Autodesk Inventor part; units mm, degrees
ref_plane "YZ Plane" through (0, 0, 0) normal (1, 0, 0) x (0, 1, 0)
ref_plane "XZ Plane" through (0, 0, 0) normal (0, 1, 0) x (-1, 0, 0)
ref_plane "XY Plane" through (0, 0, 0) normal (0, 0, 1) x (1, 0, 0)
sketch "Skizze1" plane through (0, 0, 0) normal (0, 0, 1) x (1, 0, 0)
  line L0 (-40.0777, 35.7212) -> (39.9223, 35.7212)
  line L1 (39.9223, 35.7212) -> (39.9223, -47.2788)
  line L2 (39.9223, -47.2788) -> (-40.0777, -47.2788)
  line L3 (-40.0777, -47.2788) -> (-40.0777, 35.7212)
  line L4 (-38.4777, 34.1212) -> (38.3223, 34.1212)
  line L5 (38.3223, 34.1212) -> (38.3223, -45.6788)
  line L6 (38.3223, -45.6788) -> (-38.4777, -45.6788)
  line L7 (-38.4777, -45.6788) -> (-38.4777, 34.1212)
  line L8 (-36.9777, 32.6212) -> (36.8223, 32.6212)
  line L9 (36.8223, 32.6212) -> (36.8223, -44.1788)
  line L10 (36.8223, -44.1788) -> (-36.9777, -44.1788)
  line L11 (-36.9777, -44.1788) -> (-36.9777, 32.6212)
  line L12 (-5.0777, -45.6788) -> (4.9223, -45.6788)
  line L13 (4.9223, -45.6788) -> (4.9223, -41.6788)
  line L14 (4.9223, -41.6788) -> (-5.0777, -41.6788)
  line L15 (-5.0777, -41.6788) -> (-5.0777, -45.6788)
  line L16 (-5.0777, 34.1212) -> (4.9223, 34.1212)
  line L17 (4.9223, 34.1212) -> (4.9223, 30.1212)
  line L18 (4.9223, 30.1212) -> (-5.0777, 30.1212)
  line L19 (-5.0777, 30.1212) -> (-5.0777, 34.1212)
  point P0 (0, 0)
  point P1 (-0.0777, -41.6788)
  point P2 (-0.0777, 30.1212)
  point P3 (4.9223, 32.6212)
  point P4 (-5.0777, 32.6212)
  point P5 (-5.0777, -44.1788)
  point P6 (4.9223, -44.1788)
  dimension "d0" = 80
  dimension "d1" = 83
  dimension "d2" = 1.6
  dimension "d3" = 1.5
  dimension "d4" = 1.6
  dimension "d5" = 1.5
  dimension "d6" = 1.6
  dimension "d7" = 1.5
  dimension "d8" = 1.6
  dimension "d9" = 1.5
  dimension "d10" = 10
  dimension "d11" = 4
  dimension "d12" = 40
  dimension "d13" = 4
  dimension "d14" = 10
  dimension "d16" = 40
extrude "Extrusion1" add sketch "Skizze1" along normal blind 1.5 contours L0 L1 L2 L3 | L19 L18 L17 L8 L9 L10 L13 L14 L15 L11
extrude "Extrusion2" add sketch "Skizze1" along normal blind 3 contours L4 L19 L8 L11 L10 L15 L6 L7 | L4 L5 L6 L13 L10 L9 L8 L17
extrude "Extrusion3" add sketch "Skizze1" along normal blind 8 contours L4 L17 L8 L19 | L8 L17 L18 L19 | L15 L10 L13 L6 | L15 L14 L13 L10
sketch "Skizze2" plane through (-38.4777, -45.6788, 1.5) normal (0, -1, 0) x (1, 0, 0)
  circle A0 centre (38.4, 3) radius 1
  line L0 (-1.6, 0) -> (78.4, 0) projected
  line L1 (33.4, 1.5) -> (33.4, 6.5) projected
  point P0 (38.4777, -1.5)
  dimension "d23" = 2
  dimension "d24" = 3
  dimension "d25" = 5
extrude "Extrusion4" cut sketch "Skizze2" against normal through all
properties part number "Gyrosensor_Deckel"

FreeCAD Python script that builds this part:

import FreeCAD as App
import Part
import Sketcher

V = App.Vector
Q = App.Units.Quantity


def add_polygon(sketch, points):
    """Adds a closed chain of lines whose ends are joined by coincident constraints."""
    first, n = sketch.GeometryCount, len(points)
    for a, b in zip(points, points[1:] + points[:1]):
        sketch.addGeometry(Part.LineSegment(App.Vector(*a, 0), App.Vector(*b, 0)), False)
    for i in range(n):
        sketch.addConstraint(Sketcher.Constraint("Coincident", first + i, 2, first + (i + 1) % n, 1))

doc = App.newDocument("Part")
body = doc.addObject("PartDesign::Body", "Body")
body.AllowCompound = True

# Sketch on XY plane
sketch1 = body.newObject("Sketcher::SketchObject", "Sketch")
sketch1.AttachmentSupport = (doc.getObject("XY_Plane"), [""])
sketch1.MapMode = "FlatFace"
add_polygon(sketch1, [(39.9223, 35.7212), (-40.0777, 35.7212), (-40.0777, -47.2788), (39.9223, -47.2788)])  # lines 0-3
add_polygon(sketch1, [(-38.4777, -45.6788), (-38.4777, 34.1212), (38.3223, 34.1212), (38.3223, -45.6788)])  # lines 4-7
add_polygon(sketch1, [(-5.0777, 30.1212), (-5.0777, 32.6212), (-36.9777, 32.6212), (-36.9777, -44.1788), (-5.0777, -44.1788), (-5.0777, -41.6788), (4.9223, -41.6788), (4.9223, -44.1788), (36.8223, -44.1788), (36.8223, 32.6212), (4.9223, 32.6212), (4.9223, 30.1212)])  # lines 8-19
sketch1.addConstraint([
    Sketcher.Constraint("Horizontal", 0),
    Sketcher.Constraint("Vertical", 1),
    Sketcher.Constraint("Horizontal", 2),
    Sketcher.Constraint("Vertical", 3),
    Sketcher.Constraint("Vertical", 4),
    Sketcher.Constraint("Horizontal", 5),
    Sketcher.Constraint("Vertical", 6),
    Sketcher.Constraint("Horizontal", 7),
    Sketcher.Constraint("Vertical", 8),
    Sketcher.Constraint("Horizontal", 9),
    Sketcher.Constraint("Vertical", 10),
    Sketcher.Constraint("Horizontal", 11),
    Sketcher.Constraint("Vertical", 12),
    Sketcher.Constraint("Horizontal", 13),
    Sketcher.Constraint("Vertical", 14),
    Sketcher.Constraint("Horizontal", 15),
    Sketcher.Constraint("Vertical", 16),
    Sketcher.Constraint("Horizontal", 17),
    Sketcher.Constraint("Vertical", 18),
    Sketcher.Constraint("Horizontal", 19),
    Sketcher.Constraint("Horizontal", 11, 2, 14, 2),
    Sketcher.Constraint("Horizontal", 9, 2, 16, 2),
    Sketcher.Constraint("Vertical", 8, 2, 11, 2),
    Sketcher.Constraint("Vertical", 14, 2, 17, 2),
    Sketcher.Constraint("Equal", 11, 15),
    Sketcher.Constraint("Equal", 7, 10),
    Sketcher.Constraint("Equal", 8, 12),
    Sketcher.Constraint("DistanceX", 0, 2, 0, 1, Q("80 mm")),
    Sketcher.Constraint("DistanceX", 13, 1, 13, 2, Q("10 mm")),
    Sketcher.Constraint("DistanceY", 1, 2, 1, 1, Q("83 mm")),
    Sketcher.Constraint("DistanceY", 7, 2, 12, 2, Q("4 mm")),
    Sketcher.Constraint("DistanceY", 18, 2, 5, 2, Q("4 mm")),
    Sketcher.Constraint("DistanceX", 0, 2, 4, 2, Q("1.6 mm")),
    Sketcher.Constraint("DistanceY", 4, 2, 0, 2, Q("1.6 mm")),
    Sketcher.Constraint("DistanceX", 5, 2, 3, 2, Q("1.6 mm")),
    Sketcher.Constraint("DistanceY", 2, 2, 6, 2, Q("1.6 mm")),
    Sketcher.Constraint("DistanceX", 4, 2, 9, 2, Q("1.5 mm")),
    Sketcher.Constraint("DistanceX", 15, 2, 6, 2, Q("1.5 mm")),
    Sketcher.Constraint("DistanceX", 0, 2, -1, 1, Q("40.0777 mm")),
    Sketcher.Constraint("DistanceY", -1, 1, 0, 2, Q("35.7212 mm")),
])
pad1 = body.newObject("PartDesign::Pad", "Pad")
pad1.Profile = sketch1
pad1.Length = 1.5

# Sketch on XY plane
sketch2 = body.newObject("Sketcher::SketchObject", "Sketch001")
sketch2.AttachmentSupport = (doc.getObject("XY_Plane"), [""])
sketch2.MapMode = "FlatFace"
add_polygon(sketch2, [(-5.0777, 34.1212), (-38.4777, 34.1212), (-38.4777, -45.6788), (-5.0777, -45.6788), (-5.0777, -44.1788), (-36.9777, -44.1788), (-36.9777, 32.6212), (-5.0777, 32.6212)])  # lines 0-7
add_polygon(sketch2, [(38.3223, 34.1212), (4.9223, 34.1212), (4.9223, 32.6212), (36.8223, 32.6212), (36.8223, -44.1788), (4.9223, -44.1788), (4.9223, -45.6788), (38.3223, -45.6788)])  # lines 8-15
sketch2.addConstraint([
    Sketcher.Constraint("Horizontal", 0),
    Sketcher.Constraint("Vertical", 1),
    Sketcher.Constraint("Horizontal", 2),
    Sketcher.Constraint("Vertical", 3),
    Sketcher.Constraint("Horizontal", 4),
    Sketcher.Constraint("Vertical", 5),
    Sketcher.Constraint("Horizontal", 6),
    Sketcher.Constraint("Vertical", 7),
    Sketcher.Constraint("Horizontal", 8),
    Sketcher.Constraint("Vertical", 9),
    Sketcher.Constraint("Horizontal", 10),
    Sketcher.Constraint("Vertical", 11),
    Sketcher.Constraint("Horizontal", 12),
    Sketcher.Constraint("Vertical", 13),
    Sketcher.Constraint("Horizontal", 14),
    Sketcher.Constraint("Vertical", 15),
    Sketcher.Constraint("Horizontal", 7, 2, 8, 2),
    Sketcher.Constraint("Horizontal", 6, 2, 9, 2),
    Sketcher.Constraint("Horizontal", 4, 2, 11, 2),
    Sketcher.Constraint("Horizontal", 2, 2, 13, 2),
    Sketcher.Constraint("Vertical", 3, 2, 6, 2),
    Sketcher.Constraint("Vertical", 9, 2, 12, 2),
    Sketcher.Constraint("Equal", 2, 8),
    Sketcher.Constraint("Equal", 6, 10),
    Sketcher.Constraint("Equal", 3, 7),
    Sketcher.Constraint("DistanceY", 3, 1, 3, 2, Q("1.5 mm")),
    Sketcher.Constraint("DistanceX", 7, 2, 8, 2, Q("10 mm")),
    Sketcher.Constraint("DistanceX", 1, 2, 4, 2, Q("1.5 mm")),
    Sketcher.Constraint("DistanceX", 0, 2, 0, 1, Q("33.4 mm")),
    Sketcher.Constraint("DistanceY", 1, 2, 1, 1, Q("79.8 mm")),
    Sketcher.Constraint("DistanceX", 0, 2, -1, 1, Q("38.4777 mm")),
    Sketcher.Constraint("DistanceY", -1, 1, 0, 2, Q("34.1212 mm")),
])
pad2 = body.newObject("PartDesign::Pad", "Pad001")
pad2.Profile = sketch2
pad2.Length = 3

# Sketch on XY plane
sketch3 = body.newObject("Sketcher::SketchObject", "Sketch002")
sketch3.AttachmentSupport = (doc.getObject("XY_Plane"), [""])
sketch3.MapMode = "FlatFace"
add_polygon(sketch3, [(4.9223, 34.1212), (-5.0777, 34.1212), (-5.0777, 30.1212), (4.9223, 30.1212)])  # lines 0-3
add_polygon(sketch3, [(-5.0777, -45.6788), (4.9223, -45.6788), (4.9223, -41.6788), (-5.0777, -41.6788)])  # lines 4-7
sketch3.addConstraint([
    Sketcher.Constraint("Horizontal", 0),
    Sketcher.Constraint("Vertical", 1),
    Sketcher.Constraint("Horizontal", 2),
    Sketcher.Constraint("Vertical", 3),
    Sketcher.Constraint("Horizontal", 4),
    Sketcher.Constraint("Vertical", 5),
    Sketcher.Constraint("Horizontal", 6),
    Sketcher.Constraint("Vertical", 7),
    Sketcher.Constraint("Vertical", 3, 2, 4, 2),
    Sketcher.Constraint("Vertical", 1, 2, 6, 2),
    Sketcher.Constraint("Equal", 3, 5),
    Sketcher.Constraint("DistanceX", 0, 2, 0, 1, Q("10 mm")),
    Sketcher.Constraint("DistanceY", 1, 2, 1, 1, Q("4 mm")),
    Sketcher.Constraint("DistanceY", 4, 2, 2, 2, Q("75.8 mm")),
    Sketcher.Constraint("DistanceX", 0, 2, -1, 1, Q("5.0777 mm")),
    Sketcher.Constraint("DistanceY", -1, 1, 0, 2, Q("34.1212 mm")),
])
pad3 = body.newObject("PartDesign::Pad", "Pad002")
pad3.Profile = sketch3
pad3.Length = 8

# Sketch on XZ plane
sketch4 = body.newObject("Sketcher::SketchObject", "Sketch003")
sketch4.AttachmentSupport = (doc.getObject("XZ_Plane"), [""])
sketch4.MapMode = "FlatFace"
sketch4.AttachmentOffset = App.Placement(V(0, 0, 45.6788), App.Rotation())
sketch4.addGeometry(Part.Circle(V(-0.0777, 4.5, 0), V(0, 0, 1), 1), False)
sketch4.addConstraint([
    Sketcher.Constraint("Diameter", 0, Q("2 mm")),
    Sketcher.Constraint("DistanceY", -1, 1, 0, 3, Q("4.5 mm")),
    Sketcher.Constraint("DistanceX", 0, 3, -1, 1, Q("0.0777 mm")),
])
pocket1 = body.newObject("PartDesign::Pocket", "Pocket")
pocket1.Profile = sketch4
pocket1.Type = "ThroughAll"

doc.recompute()
